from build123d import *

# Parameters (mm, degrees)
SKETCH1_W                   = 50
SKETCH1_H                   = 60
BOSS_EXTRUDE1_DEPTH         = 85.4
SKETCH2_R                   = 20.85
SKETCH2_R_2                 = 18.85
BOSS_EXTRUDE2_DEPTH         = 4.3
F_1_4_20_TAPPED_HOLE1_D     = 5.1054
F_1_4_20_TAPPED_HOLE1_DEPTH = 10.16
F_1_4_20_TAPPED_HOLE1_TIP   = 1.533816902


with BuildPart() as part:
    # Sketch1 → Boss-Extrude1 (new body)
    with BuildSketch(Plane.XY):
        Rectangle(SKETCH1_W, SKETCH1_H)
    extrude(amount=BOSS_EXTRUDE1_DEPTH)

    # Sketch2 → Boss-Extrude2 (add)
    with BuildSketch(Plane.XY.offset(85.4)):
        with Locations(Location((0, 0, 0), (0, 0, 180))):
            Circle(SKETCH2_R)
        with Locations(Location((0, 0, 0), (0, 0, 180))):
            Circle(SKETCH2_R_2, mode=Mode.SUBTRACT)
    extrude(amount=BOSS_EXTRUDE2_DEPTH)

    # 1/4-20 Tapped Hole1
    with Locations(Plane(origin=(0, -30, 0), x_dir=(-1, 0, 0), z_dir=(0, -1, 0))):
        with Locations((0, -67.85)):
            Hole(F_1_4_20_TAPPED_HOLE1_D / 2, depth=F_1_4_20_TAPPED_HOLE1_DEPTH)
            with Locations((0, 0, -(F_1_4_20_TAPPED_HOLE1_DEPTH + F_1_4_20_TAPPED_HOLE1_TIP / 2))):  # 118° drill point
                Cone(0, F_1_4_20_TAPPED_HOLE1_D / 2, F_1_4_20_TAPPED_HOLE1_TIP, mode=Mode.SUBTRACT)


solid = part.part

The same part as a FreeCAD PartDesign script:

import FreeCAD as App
import Part
import Sketcher

V = App.Vector
Q = App.Units.Quantity

doc = App.newDocument("Part")
body = doc.addObject("PartDesign::Body", "Body")

# Sketch on XY plane
sketch1 = doc.addObject("Sketcher::SketchObject", "Sketch")
body.addObject(sketch1)
sketch1.AttachmentSupport = (doc.XY_Plane, [""])
sketch1.MapMode = "FlatFace"
sketch1.addGeometry(Part.LineSegment(V(-25, 30, 0), V(-25, -30, 0)), False)
sketch1.addGeometry(Part.LineSegment(V(-25, -30, 0), V(25, -30, 0)), False)
sketch1.addGeometry(Part.LineSegment(V(25, -30, 0), V(25, 30, 0)), False)
sketch1.addGeometry(Part.LineSegment(V(25, 30, 0), V(-25, 30, 0)), False)
sketch1.addConstraint(Sketcher.Constraint("Coincident", 0, 2, 1, 1))
sketch1.addConstraint(Sketcher.Constraint("Coincident", 1, 2, 2, 1))
sketch1.addConstraint(Sketcher.Constraint("Coincident", 2, 2, 3, 1))
sketch1.addConstraint(Sketcher.Constraint("Coincident", 3, 2, 0, 1))
sketch1.addConstraint(Sketcher.Constraint("Vertical", 0))
sketch1.addConstraint(Sketcher.Constraint("Horizontal", 1))
sketch1.addConstraint(Sketcher.Constraint("Vertical", 2))
sketch1.addConstraint(Sketcher.Constraint("Horizontal", 3))
sketch1.addConstraint(Sketcher.Constraint("Symmetric", 0, 2, 2, 2, -1, 1))
sketch1.addConstraint(Sketcher.Constraint("DistanceX", 1, 1, 1, 2, Q("50 mm")))
sketch1.addConstraint(Sketcher.Constraint("DistanceY", 0, 2, 0, 1, Q("60 mm")))
pad1 = doc.addObject("PartDesign::Pad", "Pad")
body.addObject(pad1)
pad1.Profile = sketch1
pad1.Length = 85.4

# Sketch on XY plane
sketch2 = doc.addObject("Sketcher::SketchObject", "Sketch001")
body.addObject(sketch2)
sketch2.AttachmentSupport = (doc.XY_Plane, [""])
sketch2.MapMode = "FlatFace"
sketch2.AttachmentOffset = App.Placement(V(0, 0, 85.4), App.Rotation())
sketch2.addGeometry(Part.Circle(V(0, 0, 0), V(0, 0, 1), 20.85), False)
sketch2.addGeometry(Part.Circle(V(0, 0, 0), V(0, 0, 1), 18.85), False)
sketch2.addConstraint(Sketcher.Constraint("Coincident", 0, 3, -1, 1))
sketch2.addConstraint(Sketcher.Constraint("Coincident", 1, 3, -1, 1))
sketch2.addConstraint(Sketcher.Constraint("Diameter", 0, Q("41.7 mm")))
sketch2.addConstraint(Sketcher.Constraint("Diameter", 1, Q("37.7 mm")))
pad2 = doc.addObject("PartDesign::Pad", "Pad001")
body.addObject(pad2)
pad2.Profile = sketch2
pad2.Length = 4.3

# Sketch on XZ plane
sketch3 = doc.addObject("Sketcher::SketchObject", "Sketch002")
body.addObject(sketch3)
sketch3.AttachmentSupport = (doc.XZ_Plane, [""])
sketch3.MapMode = "FlatFace"
sketch3.AttachmentOffset = App.Placement(V(0, 0, 30), App.Rotation())
sketch3.addGeometry(Part.Circle(V(0, 67.85, 0), V(0, 0, 1), 2.5527), False)
sketch3.addConstraint(Sketcher.Constraint("PointOnObject", 0, 3, -2))
sketch3.addConstraint(Sketcher.Constraint("Diameter", 0, Q("5.1054 mm")))
sketch3.addConstraint(Sketcher.Constraint("DistanceY", -1, 1, 0, 3, Q("67.85 mm")))
doc.recompute()
hole = doc.addObject("PartDesign::Hole", "Hole")
body.addObject(hole)
hole.Profile = sketch3
hole.ThreadType = "None"
hole.Diameter = 5.1054
hole.DepthType = "Dimension"
hole.Depth = 10.16
hole.DrillPoint = "Angled"
hole.DrillPointAngle = 118

doc.recompute()
